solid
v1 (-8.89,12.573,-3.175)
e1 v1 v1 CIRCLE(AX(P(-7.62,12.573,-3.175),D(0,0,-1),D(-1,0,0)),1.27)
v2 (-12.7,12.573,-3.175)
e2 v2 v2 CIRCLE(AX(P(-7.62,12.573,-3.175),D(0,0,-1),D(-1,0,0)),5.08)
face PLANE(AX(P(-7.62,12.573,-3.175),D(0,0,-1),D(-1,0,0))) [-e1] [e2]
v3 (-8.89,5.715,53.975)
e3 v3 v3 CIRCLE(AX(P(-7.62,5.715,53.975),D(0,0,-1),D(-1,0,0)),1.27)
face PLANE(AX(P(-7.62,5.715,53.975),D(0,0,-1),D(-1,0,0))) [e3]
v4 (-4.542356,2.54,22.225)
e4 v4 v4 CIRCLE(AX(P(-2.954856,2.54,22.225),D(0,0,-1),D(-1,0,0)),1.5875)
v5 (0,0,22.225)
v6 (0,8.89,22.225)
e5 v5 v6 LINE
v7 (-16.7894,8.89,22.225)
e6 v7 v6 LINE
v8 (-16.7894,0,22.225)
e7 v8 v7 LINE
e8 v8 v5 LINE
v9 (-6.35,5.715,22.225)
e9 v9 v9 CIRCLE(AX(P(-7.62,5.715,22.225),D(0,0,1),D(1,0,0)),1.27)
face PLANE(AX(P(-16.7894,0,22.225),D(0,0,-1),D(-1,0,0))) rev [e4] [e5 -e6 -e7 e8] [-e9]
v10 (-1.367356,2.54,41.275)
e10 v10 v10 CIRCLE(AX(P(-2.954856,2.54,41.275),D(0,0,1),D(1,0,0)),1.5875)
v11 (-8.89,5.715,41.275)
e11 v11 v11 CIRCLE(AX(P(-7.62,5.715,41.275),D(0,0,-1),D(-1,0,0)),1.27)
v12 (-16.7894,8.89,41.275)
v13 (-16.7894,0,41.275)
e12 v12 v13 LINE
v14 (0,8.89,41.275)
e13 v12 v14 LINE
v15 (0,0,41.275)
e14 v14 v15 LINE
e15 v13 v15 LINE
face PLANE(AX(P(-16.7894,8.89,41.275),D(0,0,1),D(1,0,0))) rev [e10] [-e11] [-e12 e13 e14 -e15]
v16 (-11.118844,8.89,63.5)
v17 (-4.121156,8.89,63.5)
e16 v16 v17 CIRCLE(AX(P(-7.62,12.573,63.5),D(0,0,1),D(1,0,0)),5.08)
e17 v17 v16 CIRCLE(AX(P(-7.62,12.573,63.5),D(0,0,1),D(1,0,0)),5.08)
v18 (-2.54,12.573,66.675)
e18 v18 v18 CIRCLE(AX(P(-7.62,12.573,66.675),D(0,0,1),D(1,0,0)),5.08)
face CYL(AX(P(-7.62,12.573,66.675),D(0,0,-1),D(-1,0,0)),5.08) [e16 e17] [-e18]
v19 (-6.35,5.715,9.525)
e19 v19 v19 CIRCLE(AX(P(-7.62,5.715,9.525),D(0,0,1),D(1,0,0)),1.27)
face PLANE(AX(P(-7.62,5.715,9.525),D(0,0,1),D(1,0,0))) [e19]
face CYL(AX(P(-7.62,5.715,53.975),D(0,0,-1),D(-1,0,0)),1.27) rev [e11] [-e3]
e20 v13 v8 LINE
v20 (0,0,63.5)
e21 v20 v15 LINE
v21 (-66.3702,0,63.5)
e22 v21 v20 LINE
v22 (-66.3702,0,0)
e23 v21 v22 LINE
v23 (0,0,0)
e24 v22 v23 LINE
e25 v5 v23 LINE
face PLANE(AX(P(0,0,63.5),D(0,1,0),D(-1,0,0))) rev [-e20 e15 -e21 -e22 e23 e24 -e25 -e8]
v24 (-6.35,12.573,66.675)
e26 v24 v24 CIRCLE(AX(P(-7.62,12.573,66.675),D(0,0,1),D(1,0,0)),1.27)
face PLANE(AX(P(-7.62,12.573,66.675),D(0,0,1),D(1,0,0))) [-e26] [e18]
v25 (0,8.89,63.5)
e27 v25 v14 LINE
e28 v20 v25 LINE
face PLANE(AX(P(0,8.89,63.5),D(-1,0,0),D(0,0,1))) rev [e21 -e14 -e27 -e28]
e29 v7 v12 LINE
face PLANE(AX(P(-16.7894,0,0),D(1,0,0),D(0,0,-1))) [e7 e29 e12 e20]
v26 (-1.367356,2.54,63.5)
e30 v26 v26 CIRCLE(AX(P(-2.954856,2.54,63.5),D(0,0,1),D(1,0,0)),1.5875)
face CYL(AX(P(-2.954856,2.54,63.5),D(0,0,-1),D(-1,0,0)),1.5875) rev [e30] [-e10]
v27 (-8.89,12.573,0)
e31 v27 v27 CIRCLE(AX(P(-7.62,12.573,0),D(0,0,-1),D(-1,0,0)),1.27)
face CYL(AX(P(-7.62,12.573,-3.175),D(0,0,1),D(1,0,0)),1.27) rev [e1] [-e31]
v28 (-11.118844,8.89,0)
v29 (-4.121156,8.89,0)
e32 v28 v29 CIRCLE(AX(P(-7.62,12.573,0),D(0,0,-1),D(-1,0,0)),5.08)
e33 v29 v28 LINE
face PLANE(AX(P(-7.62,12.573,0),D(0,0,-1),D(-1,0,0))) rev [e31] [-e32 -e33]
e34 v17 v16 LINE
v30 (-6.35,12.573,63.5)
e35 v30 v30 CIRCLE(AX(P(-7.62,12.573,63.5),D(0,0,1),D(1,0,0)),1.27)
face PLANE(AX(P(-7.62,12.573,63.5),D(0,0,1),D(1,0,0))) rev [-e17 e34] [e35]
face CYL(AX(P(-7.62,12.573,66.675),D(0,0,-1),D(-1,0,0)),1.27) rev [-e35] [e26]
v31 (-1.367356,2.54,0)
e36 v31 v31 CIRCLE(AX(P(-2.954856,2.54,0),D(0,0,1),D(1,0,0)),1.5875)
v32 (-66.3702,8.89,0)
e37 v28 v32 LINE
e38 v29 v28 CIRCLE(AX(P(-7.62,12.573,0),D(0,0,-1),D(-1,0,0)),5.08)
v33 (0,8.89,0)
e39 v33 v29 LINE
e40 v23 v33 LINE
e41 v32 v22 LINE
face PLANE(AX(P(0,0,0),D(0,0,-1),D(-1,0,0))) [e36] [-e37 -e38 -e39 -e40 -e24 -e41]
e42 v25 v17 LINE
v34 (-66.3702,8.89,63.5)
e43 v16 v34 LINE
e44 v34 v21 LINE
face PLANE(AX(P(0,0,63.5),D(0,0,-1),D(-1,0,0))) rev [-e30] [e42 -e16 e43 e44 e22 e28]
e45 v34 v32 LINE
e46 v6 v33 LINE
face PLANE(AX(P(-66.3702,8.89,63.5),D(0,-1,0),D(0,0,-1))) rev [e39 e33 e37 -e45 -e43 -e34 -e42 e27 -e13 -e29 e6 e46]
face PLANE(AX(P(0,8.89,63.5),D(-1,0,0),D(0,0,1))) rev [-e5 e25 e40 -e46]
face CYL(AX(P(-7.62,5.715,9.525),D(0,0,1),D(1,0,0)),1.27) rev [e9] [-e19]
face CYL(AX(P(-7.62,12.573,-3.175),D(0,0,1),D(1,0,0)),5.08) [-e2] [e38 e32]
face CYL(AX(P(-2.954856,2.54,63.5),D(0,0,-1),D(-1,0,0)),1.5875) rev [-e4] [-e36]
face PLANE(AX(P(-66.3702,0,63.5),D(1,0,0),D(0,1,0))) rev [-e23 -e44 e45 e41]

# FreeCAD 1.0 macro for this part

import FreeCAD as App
import Part
import Sketcher

V = App.Vector
Q = App.Units.Quantity


def add_polygon(sketch, points):
    """Adds a closed chain of lines whose ends are joined by coincident constraints."""
    first, n = sketch.GeometryCount, len(points)
    for a, b in zip(points, points[1:] + points[:1]):
        sketch.addGeometry(Part.LineSegment(App.Vector(*a, 0), App.Vector(*b, 0)), False)
    for i in range(n):
        sketch.addConstraint(Sketcher.Constraint("Coincident", first + i, 2, first + (i + 1) % n, 1))

doc = App.newDocument("Part")
body = doc.addObject("PartDesign::Body", "Body")

sketch1 = body.newObject("Sketcher::SketchObject", "Sketch")
sketch1.AttachmentSupport = (doc.getObject("XY_Plane"), [""])
sketch1.MapMode = "FlatFace"
add_polygon(sketch1, [(-66.4, 8.9), (-66.4, 0), (0, 0), (0, 8.9)])
sketch1.addGeometry(Part.Circle(V(-3, 2.5, 0), V(0, 0, 1), 1.6), False)
sketch1.addConstraint(Sketcher.Constraint("Vertical", 0))
sketch1.addConstraint(Sketcher.Constraint("Horizontal", 1))
sketch1.addConstraint(Sketcher.Constraint("Vertical", 2))
sketch1.addConstraint(Sketcher.Constraint("Horizontal", 3))
sketch1.addConstraint(Sketcher.Constraint("Coincident", 1, 2, -1, 1))
sketch1.addConstraint(Sketcher.Constraint("Diameter", 4, Q("0.125 in")))
sketch1.addConstraint(Sketcher.Constraint("DistanceY", 0, 2, 0, 1, Q("0.35 in")))
sketch1.addConstraint(Sketcher.Constraint("DistanceY", -1, 1, 4, 3, Q("0.1 in")))
sketch1.addConstraint(Sketcher.Constraint("DistanceX", 1, 1, 1, 2, Q("2.613 in")))
sketch1.addConstraint(Sketcher.Constraint("DistanceX", 4, 3, -1, 1, 2.954856))
pad1 = body.newObject("PartDesign::Pad", "Pad")
pad1.Profile = sketch1
pad1.Length = Q("2.5 in")

sketch2 = body.newObject("Sketcher::SketchObject", "Sketch001")
sketch2.AttachmentSupport = (doc.getObject("YZ_Plane"), [""])
sketch2.MapMode = "FlatFace"
add_polygon(sketch2, [(9, 22), (9, 41), (0, 41), (0, 22)])
sketch2.addConstraint(Sketcher.Constraint("Vertical", 0))
sketch2.addConstraint(Sketcher.Constraint("Horizontal", 1))
sketch2.addConstraint(Sketcher.Constraint("Vertical", 2))
sketch2.addConstraint(Sketcher.Constraint("Horizontal", 3))
sketch2.addConstraint(Sketcher.Constraint("PointOnObject", 1, 2, -2))
sketch2.addConstraint(Sketcher.Constraint("DistanceX", 1, 2, 1, 1, Q("0.35 in")))
sketch2.addConstraint(Sketcher.Constraint("DistanceY", 0, 1, 0, 2, Q("0.75 in")))
sketch2.addConstraint(Sketcher.Constraint("DistanceY", -1, 1, 0, 2, Q("1.625 in")))
pocket1 = body.newObject("PartDesign::Pocket", "Pocket")
pocket1.Profile = sketch2
pocket1.Length = Q("0.661 in")

sketch3 = body.newObject("Sketcher::SketchObject", "Sketch002")
sketch3.AttachmentSupport = (doc.getObject("XY_Plane"), [""])
sketch3.MapMode = "FlatFace"
sketch3.AttachmentOffset = App.Placement(V(0, 0, 1.625 * 25.4), App.Rotation())
sketch3.addGeometry(Part.Circle(V(-7.6, 5.7, 0), V(0, 0, 1), 1.3), False)
sketch3.addConstraint(Sketcher.Constraint("Diameter", 0, Q("0.1 in")))
sketch3.addConstraint(Sketcher.Constraint("DistanceX", 0, 3, -1, 1, Q("0.3 in")))
sketch3.addConstraint(Sketcher.Constraint("DistanceY", -1, 1, 0, 3, Q("0.225 in")))
pocket2 = body.newObject("PartDesign::Pocket", "Pocket001")
pocket2.Profile = sketch3
pocket2.Length = Q("0.5 in")
pocket2.Reversed = True

sketch4 = body.newObject("Sketcher::SketchObject", "Sketch003")
sketch4.AttachmentSupport = (doc.getObject("XY_Plane"), [""])
sketch4.MapMode = "FlatFace"
sketch4.AttachmentOffset = App.Placement(V(0, 0, 0.375 * 25.4), App.Rotation())
sketch4.addGeometry(Part.Circle(V(-7.6, 5.7, 0), V(0, 0, 1), 1.3), False)
sketch4.addConstraint(Sketcher.Constraint("Diameter", 0, Q("0.1 in")))
sketch4.addConstraint(Sketcher.Constraint("DistanceX", 0, 3, -1, 1, Q("0.3 in")))
sketch4.addConstraint(Sketcher.Constraint("DistanceY", -1, 1, 0, 3, Q("0.225 in")))
pocket3 = body.newObject("PartDesign::Pocket", "Pocket002")
pocket3.Profile = sketch4
pocket3.Length = Q("0.5 in")
pocket3.Reversed = True

sketch5 = body.newObject("Sketcher::SketchObject", "Sketch004")
sketch5.AttachmentSupport = (doc.getObject("XY_Plane"), [""])
sketch5.MapMode = "FlatFace"
sketch5.AttachmentOffset = App.Placement(V(0, 0, 2.5 * 25.4), App.Rotation())
sketch5.addGeometry(Part.Circle(V(-7.6, 12.6, 0), V(0, 0, 1), 5.1), False)
sketch5.addGeometry(Part.Circle(V(-7.6, 12.6, 0), V(0, 0, 1), 1.3), False)
sketch5.addConstraint(Sketcher.Constraint("Coincident", 1, 3, 0, 3))
sketch5.addConstraint(Sketcher.Constraint("Diameter", 0, Q("0.4 in")))
sketch5.addConstraint(Sketcher.Constraint("Diameter", 1, Q("0.1 in")))
sketch5.addConstraint(Sketcher.Constraint("DistanceX", 0, 3, -1, 1, Q("0.3 in")))
sketch5.addConstraint(Sketcher.Constraint("DistanceY", -1, 1, 0, 3, Q("0.495 in")))
pad2 = body.newObject("PartDesign::Pad", "Pad001")
pad2.Profile = sketch5
pad2.Length = Q("0.125 in")

sketch6 = body.newObject("Sketcher::SketchObject", "Sketch005")
sketch6.AttachmentSupport = (doc.getObject("XY_Plane"), [""])
sketch6.MapMode = "FlatFace"
sketch6.AttachmentOffset = App.Placement(V(0, 0, -0.125 * 25.4), App.Rotation())
sketch6.addGeometry(Part.Circle(V(-7.6, 12.6, 0), V(0, 0, 1), 5.1), False)
sketch6.addGeometry(Part.Circle(V(-7.6, 12.6, 0), V(0, 0, 1), 1.3), False)
sketch6.addConstraint(Sketcher.Constraint("Coincident", 1, 3, 0, 3))
sketch6.addConstraint(Sketcher.Constraint("Diameter", 0, Q("0.4 in")))
sketch6.addConstraint(Sketcher.Constraint("Diameter", 1, Q("0.1 in")))
sketch6.addConstraint(Sketcher.Constraint("DistanceX", 0, 3, -1, 1, Q("0.3 in")))
sketch6.addConstraint(Sketcher.Constraint("DistanceY", -1, 1, 0, 3, Q("0.495 in")))
pad3 = body.newObject("PartDesign::Pad", "Pad002")
pad3.Profile = sketch6
pad3.Length = Q("0.125 in")

doc.recompute()
